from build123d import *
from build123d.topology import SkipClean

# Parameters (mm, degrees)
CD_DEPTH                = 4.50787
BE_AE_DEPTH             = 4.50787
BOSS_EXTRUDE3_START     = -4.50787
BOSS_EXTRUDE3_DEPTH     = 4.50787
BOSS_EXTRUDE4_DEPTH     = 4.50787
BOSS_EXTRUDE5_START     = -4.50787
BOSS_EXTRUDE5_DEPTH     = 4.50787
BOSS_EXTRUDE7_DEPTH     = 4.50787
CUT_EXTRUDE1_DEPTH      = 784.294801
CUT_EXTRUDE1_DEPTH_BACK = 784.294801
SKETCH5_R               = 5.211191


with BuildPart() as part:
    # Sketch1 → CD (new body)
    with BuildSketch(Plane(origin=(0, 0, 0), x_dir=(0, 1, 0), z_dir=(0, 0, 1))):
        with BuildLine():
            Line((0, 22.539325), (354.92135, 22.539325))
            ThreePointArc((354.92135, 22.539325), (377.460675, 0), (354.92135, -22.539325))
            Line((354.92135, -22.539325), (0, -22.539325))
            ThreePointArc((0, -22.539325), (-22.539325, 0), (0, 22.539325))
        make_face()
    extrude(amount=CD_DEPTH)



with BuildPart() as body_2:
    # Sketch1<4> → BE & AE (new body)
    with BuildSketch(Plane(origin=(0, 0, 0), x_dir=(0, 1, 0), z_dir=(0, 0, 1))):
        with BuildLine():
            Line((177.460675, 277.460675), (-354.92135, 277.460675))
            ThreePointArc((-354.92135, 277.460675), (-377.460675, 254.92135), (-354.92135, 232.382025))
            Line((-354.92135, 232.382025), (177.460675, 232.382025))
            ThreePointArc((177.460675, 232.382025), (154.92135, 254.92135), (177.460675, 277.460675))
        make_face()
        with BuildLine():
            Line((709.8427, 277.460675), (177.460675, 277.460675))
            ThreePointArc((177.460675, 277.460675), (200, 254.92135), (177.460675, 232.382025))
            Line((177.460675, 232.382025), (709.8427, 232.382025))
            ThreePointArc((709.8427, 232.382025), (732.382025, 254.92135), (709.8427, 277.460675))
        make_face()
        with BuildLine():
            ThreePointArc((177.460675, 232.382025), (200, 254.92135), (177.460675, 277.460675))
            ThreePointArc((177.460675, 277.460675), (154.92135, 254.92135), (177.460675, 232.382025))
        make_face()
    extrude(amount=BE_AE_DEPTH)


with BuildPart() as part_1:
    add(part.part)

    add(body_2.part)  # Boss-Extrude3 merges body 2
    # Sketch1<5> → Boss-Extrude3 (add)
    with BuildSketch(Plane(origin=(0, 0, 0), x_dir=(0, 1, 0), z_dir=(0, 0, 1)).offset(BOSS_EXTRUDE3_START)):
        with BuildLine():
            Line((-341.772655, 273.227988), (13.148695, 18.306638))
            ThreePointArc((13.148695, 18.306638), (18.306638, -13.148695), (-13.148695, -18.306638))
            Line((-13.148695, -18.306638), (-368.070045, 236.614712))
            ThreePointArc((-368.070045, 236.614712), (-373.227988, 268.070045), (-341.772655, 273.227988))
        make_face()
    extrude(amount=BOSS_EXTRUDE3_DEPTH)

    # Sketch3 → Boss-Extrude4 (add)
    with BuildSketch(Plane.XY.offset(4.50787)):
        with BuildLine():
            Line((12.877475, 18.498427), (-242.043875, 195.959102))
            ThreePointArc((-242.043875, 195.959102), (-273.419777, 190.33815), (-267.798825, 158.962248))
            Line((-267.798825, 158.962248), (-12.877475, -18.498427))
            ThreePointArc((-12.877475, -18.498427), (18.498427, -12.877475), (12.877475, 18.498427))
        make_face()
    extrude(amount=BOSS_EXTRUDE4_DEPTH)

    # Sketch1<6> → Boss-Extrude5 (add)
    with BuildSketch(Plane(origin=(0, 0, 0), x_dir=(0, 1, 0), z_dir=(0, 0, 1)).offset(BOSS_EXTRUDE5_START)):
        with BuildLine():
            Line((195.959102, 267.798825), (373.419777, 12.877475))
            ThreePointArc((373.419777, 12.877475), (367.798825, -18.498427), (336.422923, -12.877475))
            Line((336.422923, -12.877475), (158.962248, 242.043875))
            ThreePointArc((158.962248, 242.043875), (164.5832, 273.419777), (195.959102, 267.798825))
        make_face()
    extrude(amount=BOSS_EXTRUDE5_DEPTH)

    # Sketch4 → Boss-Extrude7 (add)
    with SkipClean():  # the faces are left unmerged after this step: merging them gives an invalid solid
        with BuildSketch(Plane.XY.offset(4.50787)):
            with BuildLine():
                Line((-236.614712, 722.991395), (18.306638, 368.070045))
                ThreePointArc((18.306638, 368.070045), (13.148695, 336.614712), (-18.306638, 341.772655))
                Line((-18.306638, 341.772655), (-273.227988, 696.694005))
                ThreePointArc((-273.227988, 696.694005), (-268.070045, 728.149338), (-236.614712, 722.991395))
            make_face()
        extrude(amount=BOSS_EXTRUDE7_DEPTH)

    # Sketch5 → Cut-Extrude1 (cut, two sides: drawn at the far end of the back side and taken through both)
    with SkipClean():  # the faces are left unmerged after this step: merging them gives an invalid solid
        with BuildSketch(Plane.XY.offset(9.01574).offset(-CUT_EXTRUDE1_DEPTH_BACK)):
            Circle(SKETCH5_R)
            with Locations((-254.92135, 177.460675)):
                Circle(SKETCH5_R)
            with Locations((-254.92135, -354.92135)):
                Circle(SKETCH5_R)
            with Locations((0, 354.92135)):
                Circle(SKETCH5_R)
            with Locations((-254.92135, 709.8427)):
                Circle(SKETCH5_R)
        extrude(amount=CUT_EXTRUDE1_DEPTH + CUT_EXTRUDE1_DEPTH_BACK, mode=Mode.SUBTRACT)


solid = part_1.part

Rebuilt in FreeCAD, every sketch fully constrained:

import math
import FreeCAD as App
import Part
import Sketcher

doc = App.newDocument("Part")
body = doc.addObject("PartDesign::Body", "Body")

sketch1 = body.newObject("Sketcher::SketchObject", "Sketch")
sketch1.AttachmentSupport = (doc.getObject("XY_Plane"), [""])
sketch1.MapMode = "FlatFace"
sketch1.addGeometry([
    Part.LineSegment(App.Vector(-22.539325, 354.92135, 0), App.Vector(-22.539325, 0, 0)),
    Part.ArcOfCircle(Part.Circle(App.Vector(0, 0, 0), App.Vector(0, 0, 1), 22.539325), math.radians(180), math.radians(360)),
    Part.LineSegment(App.Vector(22.539325, 0, 0), App.Vector(22.539325, 354.92135, 0)),
    Part.ArcOfCircle(Part.Circle(App.Vector(0, 354.92135, 0), App.Vector(0, 0, 1), 22.539325), math.radians(0), math.radians(180)),
], False)
sketch1.addConstraint([
    Sketcher.Constraint("Tangent", 0, 2, 1, 1),
    Sketcher.Constraint("Tangent", 1, 2, 2, 1),
    Sketcher.Constraint("Tangent", 2, 2, 3, 1),
    Sketcher.Constraint("Tangent", 3, 2, 0, 1),
    Sketcher.Constraint("Vertical", 0),
    Sketcher.Constraint("Vertical", 2),
    Sketcher.Constraint("Coincident", 1, 3, -1, 1),
    Sketcher.Constraint("Radius", 1, 22.539325),
    Sketcher.Constraint("DistanceY", 0, 2, 0, 1, 354.92135),
])
pad1 = body.newObject("PartDesign::Pad", "Pad")
pad1.Profile = sketch1
pad1.Length = 4.50787
body2 = doc.addObject("PartDesign::Body", "Body001")

sketch2 = body2.newObject("Sketcher::SketchObject", "Sketch001")
sketch2.AttachmentSupport = (doc.getObject("XY_Plane001"), [""])
sketch2.MapMode = "FlatFace"
sketch2.addGeometry([
    Part.ArcOfCircle(Part.Circle(App.Vector(-254.92135, -354.92135, 0), App.Vector(0, 0, 1), 22.539325), math.radians(180), math.radians(360)),
    Part.LineSegment(App.Vector(-232.382025, -354.92135, 0), App.Vector(-232.382025, 709.8427, 0)),
    Part.ArcOfCircle(Part.Circle(App.Vector(-254.92135, 709.8427, 0), App.Vector(0, 0, 1), 22.539325), math.radians(0), math.radians(180)),
    Part.LineSegment(App.Vector(-277.460675, 709.8427, 0), App.Vector(-277.460675, -354.92135, 0)),
], False)
sketch2.addConstraint([
    Sketcher.Constraint("Tangent", 0, 2, 1, 1),
    Sketcher.Constraint("Tangent", 1, 2, 2, 1),
    Sketcher.Constraint("Tangent", 2, 2, 3, 1),
    Sketcher.Constraint("Tangent", 3, 2, 0, 1),
    Sketcher.Constraint("Vertical", 1),
    Sketcher.Constraint("Vertical", 3),
    Sketcher.Constraint("Radius", 0, 22.539325),
    Sketcher.Constraint("DistanceY", 1, 1, 1, 2, 1064.76405),
    Sketcher.Constraint("DistanceY", -1, 1, 2, 3, 709.8427),
    Sketcher.Constraint("DistanceX", 0, 3, -1, 1, 254.92135),
])
pad2 = body2.newObject("PartDesign::Pad", "Pad001")
pad2.Profile = sketch2
pad2.Length = 4.50787
body.AllowCompound = True
doc.recompute()

boolean = body.newObject("PartDesign::Boolean", "Boolean")
boolean.Type = "Fuse"
boolean.addObjects([body2])

sketch3 = body.newObject("Sketcher::SketchObject", "Sketch002")
sketch3.AttachmentSupport = (doc.getObject("XY_Plane"), [""])
sketch3.MapMode = "FlatFace"
sketch3.AttachmentOffset = App.Placement(App.Vector(0, 0, -4.50787), App.Rotation())
sketch3.addGeometry([
    Part.LineSegment(App.Vector(-18.306638, 13.148695, 0), App.Vector(-273.227988, -341.772655, 0)),
    Part.ArcOfCircle(Part.Circle(App.Vector(-254.92135, -354.92135, 0), App.Vector(0, 0, 1), 22.539325), math.radians(144.312301), math.radians(324.312301)),
    Part.LineSegment(App.Vector(-236.614712, -368.070045, 0), App.Vector(18.306638, -13.148695, 0)),
    Part.ArcOfCircle(Part.Circle(App.Vector(0, 0, 0), App.Vector(0, 0, 1), 22.539325), math.radians(-35.687699), math.radians(144.312301)),
], False)
sketch3.addConstraint([
    Sketcher.Constraint("Tangent", 0, 2, 1, 1),
    Sketcher.Constraint("Tangent", 1, 2, 2, 1),
    Sketcher.Constraint("Tangent", 2, 2, 3, 1),
    Sketcher.Constraint("Tangent", 3, 2, 0, 1),
    Sketcher.Constraint("Coincident", 3, 3, -1, 1),
    Sketcher.Constraint("Equal", 1, 3),
    Sketcher.Constraint("Radius", 1, 22.539325),
    Sketcher.Constraint("DistanceX", 1, 3, -1, 1, 254.92135),
    Sketcher.Constraint("DistanceY", 1, 3, -1, 1, 354.92135),
])
pad3 = body.newObject("PartDesign::Pad", "Pad002")
pad3.Profile = sketch3
pad3.Length = 4.50787

sketch4 = body.newObject("Sketcher::SketchObject", "Sketch003")
sketch4.AttachmentSupport = (doc.getObject("XY_Plane"), [""])
sketch4.MapMode = "FlatFace"
sketch4.AttachmentOffset = App.Placement(App.Vector(0, 0, 4.50787), App.Rotation())
sketch4.addGeometry([
    Part.LineSegment(App.Vector(12.877475, 18.498427, 0), App.Vector(-242.043875, 195.959102, 0)),
    Part.ArcOfCircle(Part.Circle(App.Vector(-254.92135, 177.460675, 0), App.Vector(0, 0, 1), 22.539325), math.radians(55.156721), math.radians(235.156721)),
    Part.LineSegment(App.Vector(-267.798825, 158.962248, 0), App.Vector(-12.877475, -18.498427, 0)),
    Part.ArcOfCircle(Part.Circle(App.Vector(0, 0, 0), App.Vector(0, 0, 1), 22.539325), math.radians(-124.843279), math.radians(55.156721)),
], False)
sketch4.addConstraint([
    Sketcher.Constraint("Tangent", 0, 2, 1, 1),
    Sketcher.Constraint("Tangent", 1, 2, 2, 1),
    Sketcher.Constraint("Tangent", 2, 2, 3, 1),
    Sketcher.Constraint("Tangent", 3, 2, 0, 1),
    Sketcher.Constraint("Coincident", 3, 3, -1, 1),
    Sketcher.Constraint("Equal", 1, 3),
    Sketcher.Constraint("Radius", 1, 22.539325),
    Sketcher.Constraint("DistanceY", -1, 1, 0, 2, 195.959102),
    Sketcher.Constraint("DistanceX", 0, 2, 2, 2, 229.1664),
])
pad4 = body.newObject("PartDesign::Pad", "Pad003")
pad4.Profile = sketch4
pad4.Length = 4.50787

sketch5 = body.newObject("Sketcher::SketchObject", "Sketch004")
sketch5.AttachmentSupport = (doc.getObject("XY_Plane"), [""])
sketch5.MapMode = "FlatFace"
sketch5.AttachmentOffset = App.Placement(App.Vector(0, 0, -4.50787), App.Rotation())
sketch5.addGeometry([
    Part.LineSegment(App.Vector(-12.877475, 373.419777, 0), App.Vector(-267.798825, 195.959102, 0)),
    Part.ArcOfCircle(Part.Circle(App.Vector(-254.92135, 177.460675, 0), App.Vector(0, 0, 1), 22.539325), math.radians(124.843279), math.radians(304.843279)),
    Part.LineSegment(App.Vector(-242.043875, 158.962248, 0), App.Vector(12.877475, 336.422923, 0)),
    Part.ArcOfCircle(Part.Circle(App.Vector(0, 354.92135, 0), App.Vector(0, 0, 1), 22.539325), math.radians(-55.156721), math.radians(124.843279)),
], False)
sketch5.addConstraint([
    Sketcher.Constraint("Tangent", 0, 2, 1, 1),
    Sketcher.Constraint("Tangent", 1, 2, 2, 1),
    Sketcher.Constraint("Tangent", 2, 2, 3, 1),
    Sketcher.Constraint("Tangent", 3, 2, 0, 1),
    Sketcher.Constraint("Equal", 1, 3),
    Sketcher.Constraint("PointOnObject", 3, 3, -2),
    Sketcher.Constraint("Radius", 1, 22.539325),
    Sketcher.Constraint("DistanceY", -1, 1, 0, 2, 195.959102),
    Sketcher.Constraint("DistanceY", 1, 2, 3, 3, 195.959102),
    Sketcher.Constraint("DistanceX", 0, 2, 2, 2, 280.6763),
])
pad5 = body.newObject("PartDesign::Pad", "Pad004")
pad5.Profile = sketch5
pad5.Length = 4.50787

sketch6 = body.newObject("Sketcher::SketchObject", "Sketch005")
sketch6.AttachmentSupport = (doc.getObject("XY_Plane"), [""])
sketch6.MapMode = "FlatFace"
sketch6.AttachmentOffset = App.Placement(App.Vector(0, 0, 4.50787), App.Rotation())
sketch6.addGeometry([
    Part.LineSegment(App.Vector(18.306638, 368.070045, 0), App.Vector(-236.614712, 722.991395, 0)),
    Part.ArcOfCircle(Part.Circle(App.Vector(-254.92135, 709.8427, 0), App.Vector(0, 0, 1), 22.539325), math.radians(35.687699), math.radians(215.687699)),
    Part.LineSegment(App.Vector(-273.227988, 696.694005, 0), App.Vector(-18.306638, 341.772655, 0)),
    Part.ArcOfCircle(Part.Circle(App.Vector(0, 354.92135, 0), App.Vector(0, 0, 1), 22.539325), math.radians(-144.312301), math.radians(35.687699)),
], False)
sketch6.addConstraint([
    Sketcher.Constraint("Tangent", 0, 2, 1, 1),
    Sketcher.Constraint("Tangent", 1, 2, 2, 1),
    Sketcher.Constraint("Tangent", 2, 2, 3, 1),
    Sketcher.Constraint("Tangent", 3, 2, 0, 1),
    Sketcher.Constraint("Equal", 1, 3),
    Sketcher.Constraint("PointOnObject", 3, 3, -2),
    Sketcher.Constraint("Radius", 1, 22.539325),
    Sketcher.Constraint("DistanceY", -1, 1, 1, 3, 709.8427),
    Sketcher.Constraint("DistanceX", 1, 3, -1, 1, 254.92135),
    Sketcher.Constraint("DistanceY", -1, 1, 3, 3, 354.92135),
])
pad6 = body.newObject("PartDesign::Pad", "Pad005")
pad6.Profile = sketch6
pad6.Length = 4.50787

sketch7 = body.newObject("Sketcher::SketchObject", "Sketch006")
sketch7.AttachmentSupport = (doc.getObject("XY_Plane"), [""])
sketch7.MapMode = "FlatFace"
sketch7.AttachmentOffset = App.Placement(App.Vector(0, 0, 9.01574), App.Rotation())
sketch7.addGeometry([
    Part.Circle(App.Vector(0, 0, 0), App.Vector(0, 0, 1), 5.211191),
    Part.Circle(App.Vector(-254.92135, 177.460675, 0), App.Vector(0, 0, 1), 5.211191),
    Part.Circle(App.Vector(-254.92135, -354.92135, 0), App.Vector(0, 0, 1), 5.211191),
    Part.Circle(App.Vector(0, 354.92135, 0), App.Vector(0, 0, 1), 5.211191),
    Part.Circle(App.Vector(-254.92135, 709.8427, 0), App.Vector(0, 0, 1), 5.211191),
], False)
sketch7.addConstraint([
    Sketcher.Constraint("Coincident", 0, 3, -1, 1),
    Sketcher.Constraint("Equal", 0, 1),
    Sketcher.Constraint("Equal", 1, 2),
    Sketcher.Constraint("Equal", 2, 3),
    Sketcher.Constraint("Equal", 3, 4),
    Sketcher.Constraint("PointOnObject", 3, 3, -2),
    Sketcher.Constraint("Vertical", 1, 3, 2, 3),
    Sketcher.Constraint("Vertical", 2, 3, 4, 3),
    Sketcher.Constraint("Diameter", 0, 10.422382),
    Sketcher.Constraint("DistanceY", -1, 1, 4, 3, 709.8427),
    Sketcher.Constraint("DistanceY", 2, 3, 3, 3, 709.8427),
    Sketcher.Constraint("DistanceX", 1, 3, -1, 1, 254.92135),
    Sketcher.Constraint("DistanceY", 2, 3, -1, 1, 354.92135),
    Sketcher.Constraint("DistanceY", -1, 1, 1, 3, 177.460675),
])
pocket1 = body.newObject("PartDesign::Pocket", "Pocket")
pocket1.Profile = sketch7
pocket1.Type = "ThroughAll"
pocket1.Midplane = True

doc.recompute()
